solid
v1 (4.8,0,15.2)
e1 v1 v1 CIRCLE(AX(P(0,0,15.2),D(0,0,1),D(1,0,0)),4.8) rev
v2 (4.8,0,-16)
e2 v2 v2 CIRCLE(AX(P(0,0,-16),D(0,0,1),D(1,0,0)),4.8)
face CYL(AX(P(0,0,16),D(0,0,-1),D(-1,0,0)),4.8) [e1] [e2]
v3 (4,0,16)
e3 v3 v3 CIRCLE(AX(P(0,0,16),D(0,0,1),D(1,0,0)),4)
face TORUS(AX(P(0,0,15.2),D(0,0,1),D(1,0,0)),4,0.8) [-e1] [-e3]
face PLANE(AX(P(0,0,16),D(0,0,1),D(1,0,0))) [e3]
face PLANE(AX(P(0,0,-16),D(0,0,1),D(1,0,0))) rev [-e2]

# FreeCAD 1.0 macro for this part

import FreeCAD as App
import Part
import Sketcher
Q = App.Units.Quantity


def edges_at(feature, points):
    """Names of the edges that pass closest to the given points."""
    edges = feature.Shape.Edges
    near = lambda p: min(range(len(edges)), key=lambda i: edges[i].distToShape(Part.Vertex(*p))[0])
    return sorted({f"Edge{near(p) + 1}" for p in points})

doc = App.newDocument("Part")
body = doc.addObject("PartDesign::Body", "Body")

# Sketch on XY plane
sketch1 = body.newObject("Sketcher::SketchObject", "Sketch")
sketch1.AttachmentSupport = (doc.getObject("XY_Plane"), [""])
sketch1.MapMode = "FlatFace"
sketch1.addGeometry(Part.Circle(App.Vector(0, 0, 0), App.Vector(0, 0, 1), 4.8), False)
sketch1.addConstraint(Sketcher.Constraint("Coincident", 0, 3, -1, 1))
sketch1.addConstraint(Sketcher.Constraint("Diameter", 0, Q("9.6 mm")))
pad1 = body.newObject("PartDesign::Pad", "Pad")
pad1.Profile = sketch1
pad1.Length = 32
pad1.Midplane = True
doc.recompute()

fillet = body.newObject("PartDesign::Fillet", "Fillet")
fillet.Base = (pad1, edges_at(pad1, [(-4.8, 0, 16)]))
fillet.Radius = 0.8

doc.recompute()
